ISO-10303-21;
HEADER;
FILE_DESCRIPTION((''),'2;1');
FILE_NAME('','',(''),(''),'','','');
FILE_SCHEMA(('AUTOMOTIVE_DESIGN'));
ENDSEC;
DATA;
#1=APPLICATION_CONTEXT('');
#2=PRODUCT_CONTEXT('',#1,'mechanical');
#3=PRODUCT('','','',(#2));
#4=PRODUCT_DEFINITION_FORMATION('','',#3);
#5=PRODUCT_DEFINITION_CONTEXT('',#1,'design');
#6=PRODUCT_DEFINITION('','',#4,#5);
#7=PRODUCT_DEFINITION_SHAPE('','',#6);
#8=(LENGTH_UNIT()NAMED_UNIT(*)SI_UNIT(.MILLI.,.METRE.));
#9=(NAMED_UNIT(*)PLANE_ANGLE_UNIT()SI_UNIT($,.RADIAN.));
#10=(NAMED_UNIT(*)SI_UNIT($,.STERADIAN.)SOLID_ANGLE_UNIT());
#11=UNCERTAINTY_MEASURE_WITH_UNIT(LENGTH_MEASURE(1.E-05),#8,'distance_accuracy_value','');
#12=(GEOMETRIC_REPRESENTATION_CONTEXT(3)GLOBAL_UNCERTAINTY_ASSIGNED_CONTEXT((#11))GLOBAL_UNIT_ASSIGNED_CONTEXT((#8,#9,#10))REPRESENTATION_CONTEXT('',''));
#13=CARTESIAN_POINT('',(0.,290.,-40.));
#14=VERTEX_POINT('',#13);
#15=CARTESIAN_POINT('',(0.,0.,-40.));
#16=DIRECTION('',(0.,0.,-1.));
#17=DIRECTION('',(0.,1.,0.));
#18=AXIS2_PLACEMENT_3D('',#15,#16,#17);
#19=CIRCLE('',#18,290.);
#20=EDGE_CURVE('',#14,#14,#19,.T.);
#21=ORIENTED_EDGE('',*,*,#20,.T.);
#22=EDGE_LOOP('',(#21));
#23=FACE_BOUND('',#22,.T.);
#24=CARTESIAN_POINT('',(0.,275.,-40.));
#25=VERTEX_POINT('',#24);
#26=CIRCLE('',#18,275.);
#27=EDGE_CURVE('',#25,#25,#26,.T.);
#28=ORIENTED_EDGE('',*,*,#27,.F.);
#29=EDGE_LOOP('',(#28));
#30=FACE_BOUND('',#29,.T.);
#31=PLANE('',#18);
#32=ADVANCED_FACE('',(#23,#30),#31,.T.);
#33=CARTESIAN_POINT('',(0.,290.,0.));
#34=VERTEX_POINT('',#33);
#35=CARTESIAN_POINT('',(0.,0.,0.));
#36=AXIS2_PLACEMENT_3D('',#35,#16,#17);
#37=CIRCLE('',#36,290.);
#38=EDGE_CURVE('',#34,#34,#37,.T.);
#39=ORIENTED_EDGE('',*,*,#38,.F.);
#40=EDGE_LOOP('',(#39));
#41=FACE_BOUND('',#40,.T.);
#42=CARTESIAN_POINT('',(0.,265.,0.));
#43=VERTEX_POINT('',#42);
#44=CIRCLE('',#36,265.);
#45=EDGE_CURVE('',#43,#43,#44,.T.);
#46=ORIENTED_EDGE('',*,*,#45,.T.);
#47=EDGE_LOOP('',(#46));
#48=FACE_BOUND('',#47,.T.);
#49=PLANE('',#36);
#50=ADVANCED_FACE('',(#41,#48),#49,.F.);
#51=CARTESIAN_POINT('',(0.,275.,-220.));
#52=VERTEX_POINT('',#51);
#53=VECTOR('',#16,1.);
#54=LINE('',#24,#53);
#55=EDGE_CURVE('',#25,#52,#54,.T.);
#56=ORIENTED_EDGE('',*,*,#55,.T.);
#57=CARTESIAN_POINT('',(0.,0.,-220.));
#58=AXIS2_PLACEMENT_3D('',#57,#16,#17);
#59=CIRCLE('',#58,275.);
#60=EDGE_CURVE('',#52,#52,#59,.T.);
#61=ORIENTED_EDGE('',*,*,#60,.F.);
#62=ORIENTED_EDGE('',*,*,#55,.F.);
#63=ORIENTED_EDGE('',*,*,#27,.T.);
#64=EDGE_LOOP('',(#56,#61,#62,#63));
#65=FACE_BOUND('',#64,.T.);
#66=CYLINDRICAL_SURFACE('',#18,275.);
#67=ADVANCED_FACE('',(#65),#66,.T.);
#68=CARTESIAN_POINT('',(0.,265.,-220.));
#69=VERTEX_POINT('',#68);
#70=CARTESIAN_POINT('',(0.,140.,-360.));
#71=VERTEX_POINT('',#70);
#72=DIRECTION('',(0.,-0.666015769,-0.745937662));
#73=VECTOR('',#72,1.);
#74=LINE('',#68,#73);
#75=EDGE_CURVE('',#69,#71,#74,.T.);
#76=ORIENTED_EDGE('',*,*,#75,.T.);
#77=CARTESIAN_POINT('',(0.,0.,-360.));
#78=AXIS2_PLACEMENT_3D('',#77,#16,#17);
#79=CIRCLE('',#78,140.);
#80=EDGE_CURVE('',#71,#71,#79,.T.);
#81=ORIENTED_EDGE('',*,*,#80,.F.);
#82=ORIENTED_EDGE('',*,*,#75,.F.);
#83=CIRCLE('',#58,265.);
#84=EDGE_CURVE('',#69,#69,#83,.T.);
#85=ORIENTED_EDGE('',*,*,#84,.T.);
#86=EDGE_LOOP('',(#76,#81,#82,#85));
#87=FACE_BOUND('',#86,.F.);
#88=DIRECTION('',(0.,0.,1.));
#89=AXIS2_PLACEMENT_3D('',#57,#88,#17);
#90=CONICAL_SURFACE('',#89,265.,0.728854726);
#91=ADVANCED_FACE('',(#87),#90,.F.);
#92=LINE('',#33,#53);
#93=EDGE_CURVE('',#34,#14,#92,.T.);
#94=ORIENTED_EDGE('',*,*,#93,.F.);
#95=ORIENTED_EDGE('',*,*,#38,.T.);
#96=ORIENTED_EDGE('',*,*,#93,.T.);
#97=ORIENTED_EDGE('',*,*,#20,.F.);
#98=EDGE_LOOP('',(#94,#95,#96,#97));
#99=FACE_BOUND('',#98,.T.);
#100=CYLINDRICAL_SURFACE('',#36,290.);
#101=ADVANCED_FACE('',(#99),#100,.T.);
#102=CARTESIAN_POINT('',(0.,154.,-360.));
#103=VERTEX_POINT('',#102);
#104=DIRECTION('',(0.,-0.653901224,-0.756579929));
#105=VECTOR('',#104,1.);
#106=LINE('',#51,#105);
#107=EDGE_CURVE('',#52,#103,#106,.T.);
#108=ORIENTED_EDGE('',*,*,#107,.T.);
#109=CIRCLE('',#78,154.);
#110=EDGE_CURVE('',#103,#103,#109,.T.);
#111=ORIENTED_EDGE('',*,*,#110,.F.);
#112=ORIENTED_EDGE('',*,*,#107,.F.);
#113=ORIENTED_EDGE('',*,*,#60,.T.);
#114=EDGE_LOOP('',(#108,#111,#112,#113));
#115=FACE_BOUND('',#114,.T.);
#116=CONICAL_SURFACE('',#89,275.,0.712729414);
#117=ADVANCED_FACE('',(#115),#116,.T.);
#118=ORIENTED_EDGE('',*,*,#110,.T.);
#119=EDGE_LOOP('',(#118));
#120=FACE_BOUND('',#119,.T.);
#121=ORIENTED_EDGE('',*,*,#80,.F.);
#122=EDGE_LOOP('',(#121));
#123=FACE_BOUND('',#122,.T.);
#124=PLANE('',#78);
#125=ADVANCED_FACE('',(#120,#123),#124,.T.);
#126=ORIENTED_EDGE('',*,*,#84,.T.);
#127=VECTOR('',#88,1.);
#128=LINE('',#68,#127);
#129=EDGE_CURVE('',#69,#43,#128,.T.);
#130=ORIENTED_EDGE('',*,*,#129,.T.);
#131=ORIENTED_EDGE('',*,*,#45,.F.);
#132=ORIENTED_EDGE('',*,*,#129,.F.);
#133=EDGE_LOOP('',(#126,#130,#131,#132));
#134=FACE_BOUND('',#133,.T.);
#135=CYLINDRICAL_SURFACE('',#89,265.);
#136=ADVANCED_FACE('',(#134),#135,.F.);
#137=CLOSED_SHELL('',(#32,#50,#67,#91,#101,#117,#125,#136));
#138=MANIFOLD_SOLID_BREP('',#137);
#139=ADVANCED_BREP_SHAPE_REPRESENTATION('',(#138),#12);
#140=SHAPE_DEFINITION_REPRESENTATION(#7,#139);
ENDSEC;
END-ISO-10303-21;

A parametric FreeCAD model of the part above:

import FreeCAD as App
import Part
import Sketcher
from FreeCAD import Vector

doc = App.newDocument("Part")
params = doc.addObject("Spreadsheet::Sheet", "Params")
for row, (alias, value) in enumerate([
    ("sketch1_width", "14 mm"),
    ("sketch1_height", "180 mm"),
    ("sketch1_height2", "40 mm"),
    ("sketch1_width2", "15 mm"),
    ("sketch1_width3", "25 mm"),
    ("revolution_angle", "360 deg"),
], start=1):
    params.set(f"A{row}", alias)
    params.set(f"B{row}", "=" + value)
    params.setAlias(f"B{row}", alias)

body = doc.addObject("PartDesign::Body", "Body")

sketch1 = body.newObject("Sketcher::SketchObject", "Sketch")
sketch1.AttachmentSupport = (doc.getObject("YZ_Plane"), [""])
sketch1.MapMode = "FlatFace"
sketch1.addGeometry([
    Part.LineSegment(Vector(265, -220, 0), Vector(140, -360, 0)),
    Part.LineSegment(Vector(140, -360, 0), Vector(154, -360, 0)),
    Part.LineSegment(Vector(154, -360, 0), Vector(275, -220, 0)),
    Part.LineSegment(Vector(275, -220, 0), Vector(275, -40, 0)),
    Part.LineSegment(Vector(275, -40, 0), Vector(290, -40, 0)),
    Part.LineSegment(Vector(290, -40, 0), Vector(290, 0, 0)),
    Part.LineSegment(Vector(290, 0, 0), Vector(265, 0, 0)),
    Part.LineSegment(Vector(265, 0, 0), Vector(265, -220, 0)),
], False)
sketch1.addConstraint([
    Sketcher.Constraint("Coincident", 0, 2, 1, 1),
    Sketcher.Constraint("Coincident", 1, 2, 2, 1),
    Sketcher.Constraint("Coincident", 2, 2, 3, 1),
    Sketcher.Constraint("Coincident", 3, 2, 4, 1),
    Sketcher.Constraint("Coincident", 4, 2, 5, 1),
    Sketcher.Constraint("Coincident", 5, 2, 6, 1),
    Sketcher.Constraint("Coincident", 6, 2, 7, 1),
    Sketcher.Constraint("Coincident", 7, 2, 0, 1),
    Sketcher.Constraint("Horizontal", 1),
    Sketcher.Constraint("Vertical", 3),
    Sketcher.Constraint("Horizontal", 4),
    Sketcher.Constraint("Vertical", 5),
    Sketcher.Constraint("Horizontal", 6),
    Sketcher.Constraint("Vertical", 7),
    Sketcher.Constraint("PointOnObject", 5, 2, -1),
    Sketcher.Constraint("Horizontal", 2, 2, 7, 2),
    Sketcher.Constraint("DistanceX", 1, 1, 1, 2, 14.0),
    Sketcher.Constraint("DistanceY", 3, 1, 3, 2, 180.0),
    Sketcher.Constraint("DistanceY", 5, 1, 5, 2, 40.0),
    Sketcher.Constraint("DistanceX", -1, 1, 0, 2, 140.0),
    Sketcher.Constraint("DistanceY", 0, 2, -1, 1, 360.0),
    Sketcher.Constraint("DistanceX", 4, 1, 4, 2, 15.0),
    Sketcher.Constraint("DistanceX", 6, 2, 6, 1, 25.0),
    Sketcher.Constraint("DistanceX", -1, 1, 2, 2, 275.0),
])
sketch1.setExpression("Constraints[16]", "Params.sketch1_width")
sketch1.setExpression("Constraints[17]", "Params.sketch1_height")
sketch1.setExpression("Constraints[18]", "Params.sketch1_height2")
sketch1.setExpression("Constraints[21]", "Params.sketch1_width2")
sketch1.setExpression("Constraints[22]", "Params.sketch1_width3")
revolution = body.newObject("PartDesign::Revolution", "Revolution")
revolution.Profile = sketch1
revolution.ReferenceAxis = (sketch1, ["V_Axis"])
revolution.setExpression("Angle", "Params.revolution_angle")

doc.recompute()
